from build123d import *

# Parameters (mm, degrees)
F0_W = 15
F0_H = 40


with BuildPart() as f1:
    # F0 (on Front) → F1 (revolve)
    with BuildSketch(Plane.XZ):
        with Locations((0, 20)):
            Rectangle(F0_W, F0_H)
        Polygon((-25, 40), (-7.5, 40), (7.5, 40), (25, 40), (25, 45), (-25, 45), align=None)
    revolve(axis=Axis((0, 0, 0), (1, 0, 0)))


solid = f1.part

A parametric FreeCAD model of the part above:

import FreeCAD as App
import Part
import Sketcher


def add_polygon(sketch, points):
    """Adds a closed chain of lines whose ends are joined by coincident constraints."""
    first, n = sketch.GeometryCount, len(points)
    for a, b in zip(points, points[1:] + points[:1]):
        sketch.addGeometry(Part.LineSegment(App.Vector(*a, 0), App.Vector(*b, 0)), False)
    for i in range(n):
        sketch.addConstraint(Sketcher.Constraint("Coincident", first + i, 2, first + (i + 1) % n, 1))

doc = App.newDocument("Part")
body = doc.addObject("PartDesign::Body", "Body")

# Sketch on XZ plane
sketch1 = body.newObject("Sketcher::SketchObject", "Sketch")
sketch1.AttachmentSupport = (doc.getObject("XZ_Plane"), [""])
sketch1.MapMode = "FlatFace"
add_polygon(sketch1, [(-8, 40), (-8, 0), (8, 0), (8, 40), (25, 40), (25, 45), (-25, 45), (-25, 40)])  # lines 0-7
sketch1.addConstraint(Sketcher.Constraint("Vertical", 0))
sketch1.addConstraint(Sketcher.Constraint("Horizontal", 1))
sketch1.addConstraint(Sketcher.Constraint("Vertical", 2))
sketch1.addConstraint(Sketcher.Constraint("Horizontal", 3))
sketch1.addConstraint(Sketcher.Constraint("Vertical", 4))
sketch1.addConstraint(Sketcher.Constraint("Horizontal", 5))
sketch1.addConstraint(Sketcher.Constraint("Vertical", 6))
sketch1.addConstraint(Sketcher.Constraint("Horizontal", 7))
sketch1.addConstraint(Sketcher.Constraint("Symmetric", 0, 2, 1, 2, -1, 1))
sketch1.addConstraint(Sketcher.Constraint("Symmetric", 3, 2, 6, 2, -2))
sketch1.addConstraint(Sketcher.Constraint("DistanceX", 1, 1, 1, 2, 15.0))
sketch1.addConstraint(Sketcher.Constraint("DistanceX", 5, 2, 5, 1, 50.0))
sketch1.addConstraint(Sketcher.Constraint("DistanceY", 0, 2, 0, 1, 40.0))
sketch1.addConstraint(Sketcher.Constraint("DistanceY", 4, 1, 4, 2, 5.0))
revolution = body.newObject("PartDesign::Revolution", "Revolution")
revolution.Profile = sketch1
revolution.ReferenceAxis = (sketch1, ["H_Axis"])
revolution.Angle = 360

doc.recompute()
